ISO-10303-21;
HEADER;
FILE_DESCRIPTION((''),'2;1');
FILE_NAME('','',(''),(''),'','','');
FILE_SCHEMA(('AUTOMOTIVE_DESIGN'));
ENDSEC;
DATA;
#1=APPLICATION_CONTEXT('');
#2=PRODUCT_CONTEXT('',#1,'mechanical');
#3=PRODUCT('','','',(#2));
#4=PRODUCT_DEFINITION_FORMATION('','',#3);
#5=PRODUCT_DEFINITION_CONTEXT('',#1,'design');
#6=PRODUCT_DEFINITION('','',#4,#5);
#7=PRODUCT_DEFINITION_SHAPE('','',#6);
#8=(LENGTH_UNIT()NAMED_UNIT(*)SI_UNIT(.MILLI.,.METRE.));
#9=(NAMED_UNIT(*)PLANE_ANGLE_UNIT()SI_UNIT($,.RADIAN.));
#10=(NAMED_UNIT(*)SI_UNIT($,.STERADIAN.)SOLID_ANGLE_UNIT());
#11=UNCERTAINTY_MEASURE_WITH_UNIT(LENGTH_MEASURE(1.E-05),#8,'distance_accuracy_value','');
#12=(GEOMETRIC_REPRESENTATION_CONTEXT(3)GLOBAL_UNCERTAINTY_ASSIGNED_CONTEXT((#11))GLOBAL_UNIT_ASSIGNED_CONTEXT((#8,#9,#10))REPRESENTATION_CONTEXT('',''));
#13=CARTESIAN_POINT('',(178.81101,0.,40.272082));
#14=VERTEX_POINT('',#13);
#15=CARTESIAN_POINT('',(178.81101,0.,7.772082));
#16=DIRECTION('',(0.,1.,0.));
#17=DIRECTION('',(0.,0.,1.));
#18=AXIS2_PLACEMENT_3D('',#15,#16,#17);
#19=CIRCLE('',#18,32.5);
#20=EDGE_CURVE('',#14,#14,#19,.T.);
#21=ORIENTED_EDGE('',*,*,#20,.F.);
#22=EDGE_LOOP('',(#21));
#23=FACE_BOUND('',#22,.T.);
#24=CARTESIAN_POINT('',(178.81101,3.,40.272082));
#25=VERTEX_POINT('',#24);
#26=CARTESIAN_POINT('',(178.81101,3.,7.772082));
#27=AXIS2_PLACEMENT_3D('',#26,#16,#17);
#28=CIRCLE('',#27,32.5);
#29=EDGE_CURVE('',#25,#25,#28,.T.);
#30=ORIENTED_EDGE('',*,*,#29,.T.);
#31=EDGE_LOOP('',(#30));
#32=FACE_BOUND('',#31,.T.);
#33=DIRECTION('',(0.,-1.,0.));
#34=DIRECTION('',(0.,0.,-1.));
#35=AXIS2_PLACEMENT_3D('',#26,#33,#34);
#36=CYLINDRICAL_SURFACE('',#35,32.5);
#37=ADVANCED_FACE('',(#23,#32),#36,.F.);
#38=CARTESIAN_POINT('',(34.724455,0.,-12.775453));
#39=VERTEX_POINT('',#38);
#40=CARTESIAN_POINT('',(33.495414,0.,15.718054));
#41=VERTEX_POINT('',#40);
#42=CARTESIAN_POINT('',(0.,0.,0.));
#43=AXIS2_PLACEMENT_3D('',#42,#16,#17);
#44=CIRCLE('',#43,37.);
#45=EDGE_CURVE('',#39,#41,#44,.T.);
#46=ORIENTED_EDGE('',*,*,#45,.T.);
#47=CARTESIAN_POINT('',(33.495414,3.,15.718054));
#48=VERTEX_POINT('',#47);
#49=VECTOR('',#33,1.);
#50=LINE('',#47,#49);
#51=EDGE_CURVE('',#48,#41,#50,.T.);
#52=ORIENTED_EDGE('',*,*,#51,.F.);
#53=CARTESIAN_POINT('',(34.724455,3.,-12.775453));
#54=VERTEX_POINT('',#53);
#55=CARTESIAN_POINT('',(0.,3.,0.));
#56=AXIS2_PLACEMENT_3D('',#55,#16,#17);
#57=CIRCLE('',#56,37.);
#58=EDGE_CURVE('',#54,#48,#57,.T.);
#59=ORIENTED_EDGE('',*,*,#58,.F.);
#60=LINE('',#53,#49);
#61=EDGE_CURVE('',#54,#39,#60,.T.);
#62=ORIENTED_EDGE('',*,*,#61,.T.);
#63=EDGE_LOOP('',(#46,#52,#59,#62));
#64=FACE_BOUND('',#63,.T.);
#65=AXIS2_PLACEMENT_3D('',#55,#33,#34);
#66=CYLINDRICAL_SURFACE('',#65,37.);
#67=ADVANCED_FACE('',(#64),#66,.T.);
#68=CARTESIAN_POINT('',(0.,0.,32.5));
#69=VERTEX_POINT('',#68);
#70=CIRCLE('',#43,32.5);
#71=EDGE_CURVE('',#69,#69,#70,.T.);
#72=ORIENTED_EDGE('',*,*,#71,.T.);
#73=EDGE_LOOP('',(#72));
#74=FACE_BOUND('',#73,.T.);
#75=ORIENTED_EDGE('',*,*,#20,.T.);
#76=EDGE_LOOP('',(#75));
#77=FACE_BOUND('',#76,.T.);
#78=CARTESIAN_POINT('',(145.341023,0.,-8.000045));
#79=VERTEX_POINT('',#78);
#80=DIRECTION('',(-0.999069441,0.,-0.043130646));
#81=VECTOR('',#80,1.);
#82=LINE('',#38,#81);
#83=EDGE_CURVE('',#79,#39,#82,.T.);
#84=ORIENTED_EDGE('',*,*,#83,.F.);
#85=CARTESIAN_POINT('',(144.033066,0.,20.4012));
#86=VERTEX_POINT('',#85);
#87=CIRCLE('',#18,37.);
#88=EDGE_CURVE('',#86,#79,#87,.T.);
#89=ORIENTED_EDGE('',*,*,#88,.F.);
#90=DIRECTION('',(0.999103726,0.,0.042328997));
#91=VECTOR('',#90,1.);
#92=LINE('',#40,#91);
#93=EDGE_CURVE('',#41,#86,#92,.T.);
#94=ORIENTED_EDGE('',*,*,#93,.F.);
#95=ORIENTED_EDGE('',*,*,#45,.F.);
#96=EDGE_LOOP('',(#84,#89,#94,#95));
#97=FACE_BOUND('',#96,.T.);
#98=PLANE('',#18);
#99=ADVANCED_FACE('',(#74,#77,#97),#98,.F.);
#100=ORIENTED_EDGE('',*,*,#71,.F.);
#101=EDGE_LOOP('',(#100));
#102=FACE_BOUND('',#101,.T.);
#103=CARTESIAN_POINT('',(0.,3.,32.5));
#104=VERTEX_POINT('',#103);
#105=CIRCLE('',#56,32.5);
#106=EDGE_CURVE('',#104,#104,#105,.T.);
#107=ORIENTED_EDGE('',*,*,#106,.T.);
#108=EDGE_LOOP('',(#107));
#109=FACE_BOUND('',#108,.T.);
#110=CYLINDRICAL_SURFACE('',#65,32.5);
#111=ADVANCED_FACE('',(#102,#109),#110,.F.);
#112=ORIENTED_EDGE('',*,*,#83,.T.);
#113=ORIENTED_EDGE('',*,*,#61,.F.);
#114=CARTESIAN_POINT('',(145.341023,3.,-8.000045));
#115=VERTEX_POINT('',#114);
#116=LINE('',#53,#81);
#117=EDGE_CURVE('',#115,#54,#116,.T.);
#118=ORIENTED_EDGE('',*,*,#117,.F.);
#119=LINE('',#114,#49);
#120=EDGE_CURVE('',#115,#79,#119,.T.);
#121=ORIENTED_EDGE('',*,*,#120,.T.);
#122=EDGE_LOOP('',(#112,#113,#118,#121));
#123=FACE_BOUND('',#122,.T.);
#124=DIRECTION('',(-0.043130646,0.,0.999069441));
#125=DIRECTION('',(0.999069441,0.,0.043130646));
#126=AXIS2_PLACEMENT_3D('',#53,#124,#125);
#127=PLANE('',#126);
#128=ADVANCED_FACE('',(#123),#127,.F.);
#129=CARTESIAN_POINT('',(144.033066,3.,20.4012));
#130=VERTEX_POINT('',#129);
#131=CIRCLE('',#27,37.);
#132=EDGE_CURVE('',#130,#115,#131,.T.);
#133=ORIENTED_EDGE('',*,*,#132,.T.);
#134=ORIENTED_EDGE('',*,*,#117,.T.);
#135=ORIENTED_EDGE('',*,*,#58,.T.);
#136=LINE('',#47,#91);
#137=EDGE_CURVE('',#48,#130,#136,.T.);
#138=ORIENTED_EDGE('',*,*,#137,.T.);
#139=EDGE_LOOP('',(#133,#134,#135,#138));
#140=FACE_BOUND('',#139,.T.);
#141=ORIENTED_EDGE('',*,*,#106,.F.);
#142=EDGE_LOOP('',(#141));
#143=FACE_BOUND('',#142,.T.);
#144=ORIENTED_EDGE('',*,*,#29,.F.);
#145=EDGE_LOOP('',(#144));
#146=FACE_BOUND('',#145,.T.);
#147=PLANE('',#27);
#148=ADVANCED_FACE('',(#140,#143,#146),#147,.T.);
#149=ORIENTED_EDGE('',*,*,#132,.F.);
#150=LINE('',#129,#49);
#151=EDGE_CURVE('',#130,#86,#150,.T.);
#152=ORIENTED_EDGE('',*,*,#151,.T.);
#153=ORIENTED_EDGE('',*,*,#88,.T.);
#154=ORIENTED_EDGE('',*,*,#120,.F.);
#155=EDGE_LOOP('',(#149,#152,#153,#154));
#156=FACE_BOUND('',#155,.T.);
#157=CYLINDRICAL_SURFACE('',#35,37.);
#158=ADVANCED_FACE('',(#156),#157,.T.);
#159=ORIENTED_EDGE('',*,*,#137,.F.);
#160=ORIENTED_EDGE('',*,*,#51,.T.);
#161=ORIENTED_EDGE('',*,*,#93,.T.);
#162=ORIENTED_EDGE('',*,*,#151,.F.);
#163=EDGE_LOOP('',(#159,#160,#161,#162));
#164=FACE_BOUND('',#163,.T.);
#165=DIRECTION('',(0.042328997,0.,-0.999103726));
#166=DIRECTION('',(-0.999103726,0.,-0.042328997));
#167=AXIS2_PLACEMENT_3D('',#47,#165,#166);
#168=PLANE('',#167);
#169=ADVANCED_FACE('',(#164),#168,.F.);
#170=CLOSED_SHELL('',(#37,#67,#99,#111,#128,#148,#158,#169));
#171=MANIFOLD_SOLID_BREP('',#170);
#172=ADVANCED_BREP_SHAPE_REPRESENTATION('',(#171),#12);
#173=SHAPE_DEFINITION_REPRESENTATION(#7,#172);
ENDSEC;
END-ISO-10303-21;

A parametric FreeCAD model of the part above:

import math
import FreeCAD as App
import Part
import Sketcher
Q = App.Units.Quantity

doc = App.newDocument("Part")
body = doc.addObject("PartDesign::Body", "Body")

# Sketch on XZ plane
sketch1 = doc.addObject("Sketcher::SketchObject", "Sketch")
body.addObject(sketch1)
sketch1.AttachmentSupport = (doc.XZ_Plane, [""])
sketch1.MapMode = "FlatFace"
sketch1.addGeometry(Part.LineSegment(App.Vector(145, -8, 0), App.Vector(35, -13, 0)), False)
sketch1.addGeometry(Part.ArcOfCircle(Part.Circle(App.Vector(0, 0, 0), App.Vector(0, 0, 1), 37), math.radians(25), math.radians(340)), False)
sketch1.addGeometry(Part.LineSegment(App.Vector(33, 16, 0), App.Vector(144, 20, 0)), False)
sketch1.addGeometry(Part.ArcOfCircle(Part.Circle(App.Vector(179, 8, 0), App.Vector(0, 0, 1), 37), math.radians(-155), math.radians(160)), False)
sketch1.addGeometry(Part.Circle(App.Vector(179, 8, 0), App.Vector(0, 0, 1), 32), False)
sketch1.addGeometry(Part.Circle(App.Vector(0, 0, 0), App.Vector(0, 0, 1), 32), False)
sketch1.addConstraint(Sketcher.Constraint("Coincident", 0, 2, 1, 2))
sketch1.addConstraint(Sketcher.Constraint("Coincident", 1, 1, 2, 1))
sketch1.addConstraint(Sketcher.Constraint("Coincident", 2, 2, 3, 2))
sketch1.addConstraint(Sketcher.Constraint("Coincident", 3, 1, 0, 1))
sketch1.addConstraint(Sketcher.Constraint("Coincident", 1, 3, -1, 1))
sketch1.addConstraint(Sketcher.Constraint("Coincident", 5, 3, -1, 1))
sketch1.addConstraint(Sketcher.Constraint("Coincident", 4, 3, 3, 3))
sketch1.addConstraint(Sketcher.Constraint("Equal", 1, 3))
sketch1.addConstraint(Sketcher.Constraint("Equal", 4, 5))
sketch1.addConstraint(Sketcher.Constraint("Diameter", 4, Q("65 mm")))
sketch1.addConstraint(Sketcher.Constraint("Radius", 1, Q("37 mm")))
sketch1.addConstraint(Sketcher.Constraint("Distance", 0, Q("110.719599 mm")))
sketch1.addConstraint(Sketcher.Constraint("DistanceY", -1, 1, 2, 2, Q("20.4012 mm")))
sketch1.addConstraint(Sketcher.Constraint("DistanceY", 3, 1, 1, 1, Q("23.7181 mm")))
sketch1.addConstraint(Sketcher.Constraint("DistanceX", -1, 1, 3, 3, Q("178.81101 mm")))
sketch1.addConstraint(Sketcher.Constraint("DistanceY", -1, 1, 3, 3, Q("7.772082 mm")))
sketch1.addConstraint(Sketcher.Constraint("DistanceX", 1, 1, 0, 2, Q("1.229041 mm")))
pad1 = doc.addObject("PartDesign::Pad", "Pad")
body.addObject(pad1)
pad1.Profile = sketch1
pad1.Length = 3
pad1.Reversed = True

doc.recompute()
